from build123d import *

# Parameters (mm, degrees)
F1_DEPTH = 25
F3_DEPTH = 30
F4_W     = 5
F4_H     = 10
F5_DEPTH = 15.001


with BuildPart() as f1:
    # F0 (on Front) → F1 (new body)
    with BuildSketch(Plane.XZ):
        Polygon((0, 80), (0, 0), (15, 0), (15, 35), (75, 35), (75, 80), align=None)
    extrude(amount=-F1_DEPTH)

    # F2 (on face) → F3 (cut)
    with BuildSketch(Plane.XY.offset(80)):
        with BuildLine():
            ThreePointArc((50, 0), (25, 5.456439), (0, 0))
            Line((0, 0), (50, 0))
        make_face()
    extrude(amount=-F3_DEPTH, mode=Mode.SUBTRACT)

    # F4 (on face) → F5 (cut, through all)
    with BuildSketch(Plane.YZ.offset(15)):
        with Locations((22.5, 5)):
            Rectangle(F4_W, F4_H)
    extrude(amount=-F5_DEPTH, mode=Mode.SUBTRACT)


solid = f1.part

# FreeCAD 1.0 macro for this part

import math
import FreeCAD as App
import Part
import Sketcher
Q = App.Units.Quantity


def add_polygon(sketch, points):
    """Adds a closed chain of lines whose ends are joined by coincident constraints."""
    first, n = sketch.GeometryCount, len(points)
    for a, b in zip(points, points[1:] + points[:1]):
        sketch.addGeometry(Part.LineSegment(App.Vector(*a, 0), App.Vector(*b, 0)), False)
    for i in range(n):
        sketch.addConstraint(Sketcher.Constraint("Coincident", first + i, 2, first + (i + 1) % n, 1))

doc = App.newDocument("Part")
body = doc.addObject("PartDesign::Body", "Body")

# Sketch on XZ plane
sketch1 = body.newObject("Sketcher::SketchObject", "Sketch")
sketch1.AttachmentSupport = (doc.getObject("XZ_Plane"), [""])
sketch1.MapMode = "FlatFace"
add_polygon(sketch1, [(0, 80), (0, 0), (15, 0), (15, 35), (75, 35), (75, 80)])  # lines 0-5
sketch1.addConstraint([
    Sketcher.Constraint("Vertical", 0),
    Sketcher.Constraint("Horizontal", 1),
    Sketcher.Constraint("Vertical", 2),
    Sketcher.Constraint("Horizontal", 3),
    Sketcher.Constraint("Vertical", 4),
    Sketcher.Constraint("Horizontal", 5),
    Sketcher.Constraint("Coincident", 0, 2, -1, 1),
    Sketcher.Constraint("DistanceX", 1, 1, 1, 2, Q("15 mm")),
    Sketcher.Constraint("DistanceX", 3, 1, 3, 2, Q("60 mm")),
    Sketcher.Constraint("DistanceY", 0, 2, 0, 1, Q("80 mm")),
    Sketcher.Constraint("DistanceY", 2, 1, 2, 2, Q("35 mm")),
])
pad1 = body.newObject("PartDesign::Pad", "Pad")
pad1.Profile = sketch1
pad1.Length = 25
pad1.Reversed = True

# Sketch on XY plane
sketch2 = body.newObject("Sketcher::SketchObject", "Sketch001")
sketch2.AttachmentSupport = (doc.getObject("XY_Plane"), [""])
sketch2.MapMode = "FlatFace"
sketch2.AttachmentOffset = App.Placement(App.Vector(0, 0, 80), App.Rotation())
sketch2.addGeometry([
    Part.ArcOfCircle(Part.Circle(App.Vector(25, -54.543565, 0), App.Vector(0, 0, 1), 60.000004), math.radians(65.375684), math.radians(114.624316)),
    Part.LineSegment(App.Vector(0, 0, 0), App.Vector(50, 0, 0)),
], False)
sketch2.addConstraint([
    Sketcher.Constraint("Coincident", 0, 1, 1, 2),
    Sketcher.Constraint("Coincident", 1, 1, 0, 2),
    Sketcher.Constraint("Horizontal", 1),
    Sketcher.Constraint("Coincident", 1, 1, -1, 1),
    Sketcher.Constraint("DistanceX", 1, 1, 1, 2, Q("50 mm")),
    Sketcher.Constraint("Radius", 0, Q("60.000004 mm")),
])
pocket1 = body.newObject("PartDesign::Pocket", "Pocket")
pocket1.Profile = sketch2
pocket1.Length = 30

# Sketch on YZ plane
sketch3 = body.newObject("Sketcher::SketchObject", "Sketch002")
sketch3.AttachmentSupport = (doc.getObject("YZ_Plane"), [""])
sketch3.MapMode = "FlatFace"
sketch3.AttachmentOffset = App.Placement(App.Vector(0, 0, 15), App.Rotation())
add_polygon(sketch3, [(20, 10), (20, 0), (25, 0), (25, 10)])  # lines 0-3
sketch3.addConstraint([
    Sketcher.Constraint("Vertical", 0),
    Sketcher.Constraint("Horizontal", 1),
    Sketcher.Constraint("Vertical", 2),
    Sketcher.Constraint("Horizontal", 3),
    Sketcher.Constraint("PointOnObject", 0, 2, -1),
    Sketcher.Constraint("DistanceX", 1, 1, 1, 2, Q("5 mm")),
    Sketcher.Constraint("DistanceY", 0, 2, 0, 1, Q("10 mm")),
    Sketcher.Constraint("DistanceX", -1, 1, 0, 2, Q("20 mm")),
])
pocket2 = body.newObject("PartDesign::Pocket", "Pocket001")
pocket2.Profile = sketch3
pocket2.Type = "ThroughAll"

doc.recompute()
